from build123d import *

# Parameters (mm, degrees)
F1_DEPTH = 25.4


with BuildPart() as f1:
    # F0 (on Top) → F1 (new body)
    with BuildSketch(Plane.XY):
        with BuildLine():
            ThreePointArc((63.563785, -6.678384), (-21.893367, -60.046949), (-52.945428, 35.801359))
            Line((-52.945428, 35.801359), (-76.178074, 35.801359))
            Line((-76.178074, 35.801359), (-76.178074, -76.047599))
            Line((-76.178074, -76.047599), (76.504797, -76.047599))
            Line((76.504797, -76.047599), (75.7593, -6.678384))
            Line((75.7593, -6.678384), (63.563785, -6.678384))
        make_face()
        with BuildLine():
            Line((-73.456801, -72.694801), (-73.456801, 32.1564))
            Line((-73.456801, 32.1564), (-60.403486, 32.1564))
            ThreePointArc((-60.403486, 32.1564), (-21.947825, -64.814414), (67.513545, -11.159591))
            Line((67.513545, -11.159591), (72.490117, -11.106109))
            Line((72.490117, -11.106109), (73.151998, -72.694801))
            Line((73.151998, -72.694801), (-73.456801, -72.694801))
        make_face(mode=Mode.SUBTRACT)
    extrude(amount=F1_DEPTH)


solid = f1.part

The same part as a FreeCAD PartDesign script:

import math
import FreeCAD as App
import Part
import Sketcher

V = App.Vector
Q = App.Units.Quantity

doc = App.newDocument("Part")
body = doc.addObject("PartDesign::Body", "Body")

# Sketch on XY plane
sketch1 = doc.addObject("Sketcher::SketchObject", "Sketch")
body.addObject(sketch1)
sketch1.AttachmentSupport = (doc.XY_Plane, [""])
sketch1.MapMode = "FlatFace"
sketch1.addGeometry(Part.ArcOfCircle(Part.Circle(V(0, 0, 0), V(0, 0, 1), 63.9), math.radians(146), math.radians(354)), False)
sketch1.addGeometry(Part.LineSegment(V(-52.9, 35.8, 0), V(-76.2, 35.8, 0)), False)
sketch1.addGeometry(Part.LineSegment(V(-76.2, 35.8, 0), V(-76.2, -76, 0)), False)
sketch1.addGeometry(Part.LineSegment(V(-76.2, -76, 0), V(76.5, -76, 0)), False)
sketch1.addGeometry(Part.LineSegment(V(76.5, -76, 0), V(75.8, -6.7, 0)), False)
sketch1.addGeometry(Part.LineSegment(V(75.8, -6.7, 0), V(63.6, -6.7, 0)), False)
sketch1.addGeometry(Part.LineSegment(V(73.2, -72.7, 0), V(-73.5, -72.7, 0)), False)
sketch1.addGeometry(Part.LineSegment(V(-73.5, -72.7, 0), V(-73.5, 32.2, 0)), False)
sketch1.addGeometry(Part.LineSegment(V(-73.5, 32.2, 0), V(-60.4, 32.2, 0)), False)
sketch1.addGeometry(Part.ArcOfCircle(Part.Circle(V(0, 0, 0), V(0, 0, 1), 68.4), math.radians(152), math.radians(351)), False)
sketch1.addGeometry(Part.LineSegment(V(67.5, -11.2, 0), V(72.5, -11.1, 0)), False)
sketch1.addGeometry(Part.LineSegment(V(72.5, -11.1, 0), V(73.2, -72.7, 0)), False)
sketch1.addConstraint(Sketcher.Constraint("Coincident", 0, 1, 1, 1))
sketch1.addConstraint(Sketcher.Constraint("Coincident", 1, 2, 2, 1))
sketch1.addConstraint(Sketcher.Constraint("Coincident", 2, 2, 3, 1))
sketch1.addConstraint(Sketcher.Constraint("Coincident", 3, 2, 4, 1))
sketch1.addConstraint(Sketcher.Constraint("Coincident", 4, 2, 5, 1))
sketch1.addConstraint(Sketcher.Constraint("Coincident", 5, 2, 0, 2))
sketch1.addConstraint(Sketcher.Constraint("Coincident", 6, 2, 7, 1))
sketch1.addConstraint(Sketcher.Constraint("Coincident", 7, 2, 8, 1))
sketch1.addConstraint(Sketcher.Constraint("Coincident", 8, 2, 9, 1))
sketch1.addConstraint(Sketcher.Constraint("Coincident", 9, 2, 10, 1))
sketch1.addConstraint(Sketcher.Constraint("Coincident", 10, 2, 11, 1))
sketch1.addConstraint(Sketcher.Constraint("Coincident", 11, 2, 6, 1))
sketch1.addConstraint(Sketcher.Constraint("Horizontal", 1))
sketch1.addConstraint(Sketcher.Constraint("Vertical", 2))
sketch1.addConstraint(Sketcher.Constraint("Horizontal", 3))
sketch1.addConstraint(Sketcher.Constraint("Horizontal", 5))
sketch1.addConstraint(Sketcher.Constraint("Horizontal", 6))
sketch1.addConstraint(Sketcher.Constraint("Vertical", 7))
sketch1.addConstraint(Sketcher.Constraint("Horizontal", 8))
sketch1.addConstraint(Sketcher.Constraint("Coincident", 0, 3, -1, 1))
sketch1.addConstraint(Sketcher.Constraint("Coincident", 9, 3, -1, 1))
sketch1.addConstraint(Sketcher.Constraint("Perpendicular", 4, 10))
sketch1.addConstraint(Sketcher.Constraint("Perpendicular", 10, 11))
sketch1.addConstraint(Sketcher.Constraint("DistanceX", 6, 2, 6, 1, Q("5.772 in")))
sketch1.addConstraint(Sketcher.Constraint("DistanceY", 7, 1, 7, 2, Q("4.128 in")))
sketch1.addConstraint(Sketcher.Constraint("DistanceX", -1, 1, 11, 2, Q("2.8799999 in")))
sketch1.addConstraint(Sketcher.Constraint("DistanceY", 2, 2, -1, 1, Q("2.994 in")))
sketch1.addConstraint(Sketcher.Constraint("DistanceX", -1, 1, 3, 2, Q("3.0119999 in")))
sketch1.addConstraint(Sketcher.Constraint("DistanceY", 6, 2, -1, 1, Q("2.862 in")))
sketch1.addConstraint(Sketcher.Constraint("Radius", 0, Q("63.913657 mm")))
sketch1.addConstraint(Sketcher.Constraint("Radius", 9, Q("68.429637 mm")))
sketch1.addConstraint(Sketcher.Constraint("DistanceX", 3, 1, 3, 2, Q("152.682871 mm")))
sketch1.addConstraint(Sketcher.Constraint("DistanceY", 2, 2, 2, 1, Q("111.848958 mm")))
sketch1.addConstraint(Sketcher.Constraint("DistanceX", -1, 1, 4, 2, Q("75.7593 mm")))
sketch1.addConstraint(Sketcher.Constraint("Distance", 4, Q("69.373221 mm")))
sketch1.addConstraint(Sketcher.Constraint("Distance", 10, Q("4.976859 mm")))
pad1 = doc.addObject("PartDesign::Pad", "Pad")
body.addObject(pad1)
pad1.Profile = sketch1
pad1.Length = Q("1 in")

doc.recompute()
